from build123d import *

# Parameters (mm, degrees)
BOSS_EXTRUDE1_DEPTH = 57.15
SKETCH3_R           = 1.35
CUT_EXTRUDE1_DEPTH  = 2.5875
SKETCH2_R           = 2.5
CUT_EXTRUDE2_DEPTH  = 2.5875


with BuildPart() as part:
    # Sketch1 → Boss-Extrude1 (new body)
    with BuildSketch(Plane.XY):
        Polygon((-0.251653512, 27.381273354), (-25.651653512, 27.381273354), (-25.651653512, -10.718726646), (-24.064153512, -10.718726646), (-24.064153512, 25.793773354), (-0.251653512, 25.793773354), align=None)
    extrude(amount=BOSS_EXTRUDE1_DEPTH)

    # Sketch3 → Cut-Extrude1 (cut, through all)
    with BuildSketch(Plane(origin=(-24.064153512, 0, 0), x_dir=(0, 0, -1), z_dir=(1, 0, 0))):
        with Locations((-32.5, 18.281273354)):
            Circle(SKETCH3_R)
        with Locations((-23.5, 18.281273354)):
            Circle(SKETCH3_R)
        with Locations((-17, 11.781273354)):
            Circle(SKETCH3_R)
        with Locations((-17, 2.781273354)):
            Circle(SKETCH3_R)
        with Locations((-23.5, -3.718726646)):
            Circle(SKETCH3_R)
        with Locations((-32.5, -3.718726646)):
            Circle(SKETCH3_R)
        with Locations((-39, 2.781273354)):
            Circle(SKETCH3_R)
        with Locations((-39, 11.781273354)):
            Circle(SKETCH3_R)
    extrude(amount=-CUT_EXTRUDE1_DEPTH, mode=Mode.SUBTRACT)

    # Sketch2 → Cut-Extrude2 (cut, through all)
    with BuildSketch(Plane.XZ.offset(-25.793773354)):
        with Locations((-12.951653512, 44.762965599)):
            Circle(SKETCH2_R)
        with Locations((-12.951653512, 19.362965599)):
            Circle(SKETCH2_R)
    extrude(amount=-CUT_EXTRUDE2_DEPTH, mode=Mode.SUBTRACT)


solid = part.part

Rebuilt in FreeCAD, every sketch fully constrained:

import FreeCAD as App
import Part
import Sketcher
from FreeCAD import Vector
Q = App.Units.Quantity


def add_polygon(sketch, points):
    """Adds a closed chain of lines whose ends are joined by coincident constraints."""
    first, n = sketch.GeometryCount, len(points)
    for a, b in zip(points, points[1:] + points[:1]):
        sketch.addGeometry(Part.LineSegment(App.Vector(*a, 0), App.Vector(*b, 0)), False)
    for i in range(n):
        sketch.addConstraint(Sketcher.Constraint("Coincident", first + i, 2, first + (i + 1) % n, 1))

doc = App.newDocument("Part")
params = doc.addObject("Spreadsheet::Sheet", "Params")
for row, (alias, value) in enumerate([
    ("sketch1_width", "1 in"),
    ("sketch1_height", "1.5 in"),
    ("sketch1_width2", "0.0625 in"),
    ("pad1_length", "2.25 in"),
], start=1):
    params.set(f"A{row}", alias)
    params.set(f"B{row}", "=" + value)
    params.setAlias(f"B{row}", alias)

body = doc.addObject("PartDesign::Body", "Body")

# Sketch on XY plane
sketch1 = doc.addObject("Sketcher::SketchObject", "Sketch")
body.addObject(sketch1)
sketch1.AttachmentSupport = (doc.XY_Plane, [""])
sketch1.MapMode = "FlatFace"
add_polygon(sketch1, [(-0.251654, 27.381273), (-25.651654, 27.381273), (-25.651654, -10.718727), (-24.064154, -10.718727), (-24.064154, 25.793773), (-0.251654, 25.793773)])  # lines 0-5
sketch1.addConstraint([
    Sketcher.Constraint("Horizontal", 0),
    Sketcher.Constraint("Vertical", 1),
    Sketcher.Constraint("Horizontal", 2),
    Sketcher.Constraint("Vertical", 3),
    Sketcher.Constraint("Horizontal", 4),
    Sketcher.Constraint("Vertical", 5),
    Sketcher.Constraint("Equal", 2, 5),
    Sketcher.Constraint("DistanceX", 0, 2, 0, 1, Q("1 in")),
    Sketcher.Constraint("DistanceY", 1, 2, 1, 1, Q("1.5 in")),
    Sketcher.Constraint("DistanceX", 2, 1, 2, 2, Q("0.0625 in")),
    Sketcher.Constraint("DistanceX", 0, 2, -1, 1, 25.651654),
    Sketcher.Constraint("DistanceY", -1, 1, 0, 2, 27.381273),
])
sketch1.setExpression("Constraints[13]", "Params.sketch1_width")
sketch1.setExpression("Constraints[14]", "Params.sketch1_height")
sketch1.setExpression("Constraints[15]", "Params.sketch1_width2")
pad1 = doc.addObject("PartDesign::Pad", "Pad")
body.addObject(pad1)
pad1.Profile = sketch1
pad1.setExpression("Length", "Params.pad1_length")

# Sketch on YZ plane
sketch2 = doc.addObject("Sketcher::SketchObject", "Sketch001")
body.addObject(sketch2)
sketch2.AttachmentSupport = (doc.YZ_Plane, [""])
sketch2.MapMode = "FlatFace"
sketch2.AttachmentOffset = App.Placement(Vector(0, 0, -24.064154), App.Rotation())
sketch2.addGeometry([
    Part.Circle(Vector(18.281273, 32.5, 0), Vector(0, 0, 1), 1.35),  # 0
    Part.Circle(Vector(18.281273, 23.5, 0), Vector(0, 0, 1), 1.35),  # 1
    Part.Circle(Vector(11.781273, 17, 0), Vector(0, 0, 1), 1.35),  # 2
    Part.Circle(Vector(2.781273, 17, 0), Vector(0, 0, 1), 1.35),  # 3
    Part.Circle(Vector(-3.718727, 23.5, 0), Vector(0, 0, 1), 1.35),  # 4
    Part.Circle(Vector(-3.718727, 32.5, 0), Vector(0, 0, 1), 1.35),  # 5
    Part.Circle(Vector(2.781273, 39, 0), Vector(0, 0, 1), 1.35),  # 6
    Part.Circle(Vector(11.781273, 39, 0), Vector(0, 0, 1), 1.35),  # 7
], False)
sketch2.addConstraint([
    Sketcher.Constraint("Equal", 0, 1),
    Sketcher.Constraint("Equal", 1, 2),
    Sketcher.Constraint("Equal", 2, 3),
    Sketcher.Constraint("Equal", 3, 4),
    Sketcher.Constraint("Equal", 4, 5),
    Sketcher.Constraint("Equal", 5, 6),
    Sketcher.Constraint("Equal", 6, 7),
    Sketcher.Constraint("Horizontal", 2, 3, 3, 3),
    Sketcher.Constraint("Horizontal", 1, 3, 4, 3),
    Sketcher.Constraint("Horizontal", 0, 3, 5, 3),
    Sketcher.Constraint("Horizontal", 6, 3, 7, 3),
    Sketcher.Constraint("Vertical", 0, 3, 1, 3),
    Sketcher.Constraint("Vertical", 4, 3, 5, 3),
    Sketcher.Constraint("Vertical", 3, 3, 6, 3),
    Sketcher.Constraint("Vertical", 2, 3, 7, 3),
    Sketcher.Constraint("Diameter", 0, 2.7),
    Sketcher.Constraint("DistanceY", -1, 1, 0, 3, 32.5),
    Sketcher.Constraint("DistanceY", -1, 1, 1, 3, 23.5),
    Sketcher.Constraint("DistanceY", -1, 1, 2, 3, 17.0),
    Sketcher.Constraint("DistanceY", -1, 1, 6, 3, 39.0),
    Sketcher.Constraint("DistanceX", 2, 3, 1, 3, 6.5),
    Sketcher.Constraint("DistanceX", 3, 3, 2, 3, 9.0),
    Sketcher.Constraint("DistanceX", 4, 3, 3, 3, 6.5),
    Sketcher.Constraint("DistanceX", -1, 1, 0, 3, 18.281273),
])
pocket1 = doc.addObject("PartDesign::Pocket", "Pocket")
body.addObject(pocket1)
pocket1.Profile = sketch2
pocket1.Type = "ThroughAll"

# Sketch on XZ plane
sketch3 = doc.addObject("Sketcher::SketchObject", "Sketch002")
body.addObject(sketch3)
sketch3.AttachmentSupport = (doc.XZ_Plane, [""])
sketch3.MapMode = "FlatFace"
sketch3.AttachmentOffset = App.Placement(Vector(0, 0, -25.793773), App.Rotation())
sketch3.addGeometry([
    Part.Circle(Vector(-12.951654, 44.762966, 0), Vector(0, 0, 1), 2.5),
    Part.Circle(Vector(-12.951654, 19.362966, 0), Vector(0, 0, 1), 2.5),
], False)
sketch3.addConstraint([
    Sketcher.Constraint("Equal", 0, 1),
    Sketcher.Constraint("Vertical", 0, 3, 1, 3),
    Sketcher.Constraint("DistanceY", 1, 3, 0, 3, Q("1 in")),
    Sketcher.Constraint("Diameter", 0, 5.0),
    Sketcher.Constraint("DistanceX", 0, 3, -1, 1, 12.951654),
    Sketcher.Constraint("DistanceY", -1, 1, 0, 3, 44.762966),
])
pocket2 = doc.addObject("PartDesign::Pocket", "Pocket001")
body.addObject(pocket2)
pocket2.Profile = sketch3
pocket2.Type = "ThroughAll"

doc.recompute()
